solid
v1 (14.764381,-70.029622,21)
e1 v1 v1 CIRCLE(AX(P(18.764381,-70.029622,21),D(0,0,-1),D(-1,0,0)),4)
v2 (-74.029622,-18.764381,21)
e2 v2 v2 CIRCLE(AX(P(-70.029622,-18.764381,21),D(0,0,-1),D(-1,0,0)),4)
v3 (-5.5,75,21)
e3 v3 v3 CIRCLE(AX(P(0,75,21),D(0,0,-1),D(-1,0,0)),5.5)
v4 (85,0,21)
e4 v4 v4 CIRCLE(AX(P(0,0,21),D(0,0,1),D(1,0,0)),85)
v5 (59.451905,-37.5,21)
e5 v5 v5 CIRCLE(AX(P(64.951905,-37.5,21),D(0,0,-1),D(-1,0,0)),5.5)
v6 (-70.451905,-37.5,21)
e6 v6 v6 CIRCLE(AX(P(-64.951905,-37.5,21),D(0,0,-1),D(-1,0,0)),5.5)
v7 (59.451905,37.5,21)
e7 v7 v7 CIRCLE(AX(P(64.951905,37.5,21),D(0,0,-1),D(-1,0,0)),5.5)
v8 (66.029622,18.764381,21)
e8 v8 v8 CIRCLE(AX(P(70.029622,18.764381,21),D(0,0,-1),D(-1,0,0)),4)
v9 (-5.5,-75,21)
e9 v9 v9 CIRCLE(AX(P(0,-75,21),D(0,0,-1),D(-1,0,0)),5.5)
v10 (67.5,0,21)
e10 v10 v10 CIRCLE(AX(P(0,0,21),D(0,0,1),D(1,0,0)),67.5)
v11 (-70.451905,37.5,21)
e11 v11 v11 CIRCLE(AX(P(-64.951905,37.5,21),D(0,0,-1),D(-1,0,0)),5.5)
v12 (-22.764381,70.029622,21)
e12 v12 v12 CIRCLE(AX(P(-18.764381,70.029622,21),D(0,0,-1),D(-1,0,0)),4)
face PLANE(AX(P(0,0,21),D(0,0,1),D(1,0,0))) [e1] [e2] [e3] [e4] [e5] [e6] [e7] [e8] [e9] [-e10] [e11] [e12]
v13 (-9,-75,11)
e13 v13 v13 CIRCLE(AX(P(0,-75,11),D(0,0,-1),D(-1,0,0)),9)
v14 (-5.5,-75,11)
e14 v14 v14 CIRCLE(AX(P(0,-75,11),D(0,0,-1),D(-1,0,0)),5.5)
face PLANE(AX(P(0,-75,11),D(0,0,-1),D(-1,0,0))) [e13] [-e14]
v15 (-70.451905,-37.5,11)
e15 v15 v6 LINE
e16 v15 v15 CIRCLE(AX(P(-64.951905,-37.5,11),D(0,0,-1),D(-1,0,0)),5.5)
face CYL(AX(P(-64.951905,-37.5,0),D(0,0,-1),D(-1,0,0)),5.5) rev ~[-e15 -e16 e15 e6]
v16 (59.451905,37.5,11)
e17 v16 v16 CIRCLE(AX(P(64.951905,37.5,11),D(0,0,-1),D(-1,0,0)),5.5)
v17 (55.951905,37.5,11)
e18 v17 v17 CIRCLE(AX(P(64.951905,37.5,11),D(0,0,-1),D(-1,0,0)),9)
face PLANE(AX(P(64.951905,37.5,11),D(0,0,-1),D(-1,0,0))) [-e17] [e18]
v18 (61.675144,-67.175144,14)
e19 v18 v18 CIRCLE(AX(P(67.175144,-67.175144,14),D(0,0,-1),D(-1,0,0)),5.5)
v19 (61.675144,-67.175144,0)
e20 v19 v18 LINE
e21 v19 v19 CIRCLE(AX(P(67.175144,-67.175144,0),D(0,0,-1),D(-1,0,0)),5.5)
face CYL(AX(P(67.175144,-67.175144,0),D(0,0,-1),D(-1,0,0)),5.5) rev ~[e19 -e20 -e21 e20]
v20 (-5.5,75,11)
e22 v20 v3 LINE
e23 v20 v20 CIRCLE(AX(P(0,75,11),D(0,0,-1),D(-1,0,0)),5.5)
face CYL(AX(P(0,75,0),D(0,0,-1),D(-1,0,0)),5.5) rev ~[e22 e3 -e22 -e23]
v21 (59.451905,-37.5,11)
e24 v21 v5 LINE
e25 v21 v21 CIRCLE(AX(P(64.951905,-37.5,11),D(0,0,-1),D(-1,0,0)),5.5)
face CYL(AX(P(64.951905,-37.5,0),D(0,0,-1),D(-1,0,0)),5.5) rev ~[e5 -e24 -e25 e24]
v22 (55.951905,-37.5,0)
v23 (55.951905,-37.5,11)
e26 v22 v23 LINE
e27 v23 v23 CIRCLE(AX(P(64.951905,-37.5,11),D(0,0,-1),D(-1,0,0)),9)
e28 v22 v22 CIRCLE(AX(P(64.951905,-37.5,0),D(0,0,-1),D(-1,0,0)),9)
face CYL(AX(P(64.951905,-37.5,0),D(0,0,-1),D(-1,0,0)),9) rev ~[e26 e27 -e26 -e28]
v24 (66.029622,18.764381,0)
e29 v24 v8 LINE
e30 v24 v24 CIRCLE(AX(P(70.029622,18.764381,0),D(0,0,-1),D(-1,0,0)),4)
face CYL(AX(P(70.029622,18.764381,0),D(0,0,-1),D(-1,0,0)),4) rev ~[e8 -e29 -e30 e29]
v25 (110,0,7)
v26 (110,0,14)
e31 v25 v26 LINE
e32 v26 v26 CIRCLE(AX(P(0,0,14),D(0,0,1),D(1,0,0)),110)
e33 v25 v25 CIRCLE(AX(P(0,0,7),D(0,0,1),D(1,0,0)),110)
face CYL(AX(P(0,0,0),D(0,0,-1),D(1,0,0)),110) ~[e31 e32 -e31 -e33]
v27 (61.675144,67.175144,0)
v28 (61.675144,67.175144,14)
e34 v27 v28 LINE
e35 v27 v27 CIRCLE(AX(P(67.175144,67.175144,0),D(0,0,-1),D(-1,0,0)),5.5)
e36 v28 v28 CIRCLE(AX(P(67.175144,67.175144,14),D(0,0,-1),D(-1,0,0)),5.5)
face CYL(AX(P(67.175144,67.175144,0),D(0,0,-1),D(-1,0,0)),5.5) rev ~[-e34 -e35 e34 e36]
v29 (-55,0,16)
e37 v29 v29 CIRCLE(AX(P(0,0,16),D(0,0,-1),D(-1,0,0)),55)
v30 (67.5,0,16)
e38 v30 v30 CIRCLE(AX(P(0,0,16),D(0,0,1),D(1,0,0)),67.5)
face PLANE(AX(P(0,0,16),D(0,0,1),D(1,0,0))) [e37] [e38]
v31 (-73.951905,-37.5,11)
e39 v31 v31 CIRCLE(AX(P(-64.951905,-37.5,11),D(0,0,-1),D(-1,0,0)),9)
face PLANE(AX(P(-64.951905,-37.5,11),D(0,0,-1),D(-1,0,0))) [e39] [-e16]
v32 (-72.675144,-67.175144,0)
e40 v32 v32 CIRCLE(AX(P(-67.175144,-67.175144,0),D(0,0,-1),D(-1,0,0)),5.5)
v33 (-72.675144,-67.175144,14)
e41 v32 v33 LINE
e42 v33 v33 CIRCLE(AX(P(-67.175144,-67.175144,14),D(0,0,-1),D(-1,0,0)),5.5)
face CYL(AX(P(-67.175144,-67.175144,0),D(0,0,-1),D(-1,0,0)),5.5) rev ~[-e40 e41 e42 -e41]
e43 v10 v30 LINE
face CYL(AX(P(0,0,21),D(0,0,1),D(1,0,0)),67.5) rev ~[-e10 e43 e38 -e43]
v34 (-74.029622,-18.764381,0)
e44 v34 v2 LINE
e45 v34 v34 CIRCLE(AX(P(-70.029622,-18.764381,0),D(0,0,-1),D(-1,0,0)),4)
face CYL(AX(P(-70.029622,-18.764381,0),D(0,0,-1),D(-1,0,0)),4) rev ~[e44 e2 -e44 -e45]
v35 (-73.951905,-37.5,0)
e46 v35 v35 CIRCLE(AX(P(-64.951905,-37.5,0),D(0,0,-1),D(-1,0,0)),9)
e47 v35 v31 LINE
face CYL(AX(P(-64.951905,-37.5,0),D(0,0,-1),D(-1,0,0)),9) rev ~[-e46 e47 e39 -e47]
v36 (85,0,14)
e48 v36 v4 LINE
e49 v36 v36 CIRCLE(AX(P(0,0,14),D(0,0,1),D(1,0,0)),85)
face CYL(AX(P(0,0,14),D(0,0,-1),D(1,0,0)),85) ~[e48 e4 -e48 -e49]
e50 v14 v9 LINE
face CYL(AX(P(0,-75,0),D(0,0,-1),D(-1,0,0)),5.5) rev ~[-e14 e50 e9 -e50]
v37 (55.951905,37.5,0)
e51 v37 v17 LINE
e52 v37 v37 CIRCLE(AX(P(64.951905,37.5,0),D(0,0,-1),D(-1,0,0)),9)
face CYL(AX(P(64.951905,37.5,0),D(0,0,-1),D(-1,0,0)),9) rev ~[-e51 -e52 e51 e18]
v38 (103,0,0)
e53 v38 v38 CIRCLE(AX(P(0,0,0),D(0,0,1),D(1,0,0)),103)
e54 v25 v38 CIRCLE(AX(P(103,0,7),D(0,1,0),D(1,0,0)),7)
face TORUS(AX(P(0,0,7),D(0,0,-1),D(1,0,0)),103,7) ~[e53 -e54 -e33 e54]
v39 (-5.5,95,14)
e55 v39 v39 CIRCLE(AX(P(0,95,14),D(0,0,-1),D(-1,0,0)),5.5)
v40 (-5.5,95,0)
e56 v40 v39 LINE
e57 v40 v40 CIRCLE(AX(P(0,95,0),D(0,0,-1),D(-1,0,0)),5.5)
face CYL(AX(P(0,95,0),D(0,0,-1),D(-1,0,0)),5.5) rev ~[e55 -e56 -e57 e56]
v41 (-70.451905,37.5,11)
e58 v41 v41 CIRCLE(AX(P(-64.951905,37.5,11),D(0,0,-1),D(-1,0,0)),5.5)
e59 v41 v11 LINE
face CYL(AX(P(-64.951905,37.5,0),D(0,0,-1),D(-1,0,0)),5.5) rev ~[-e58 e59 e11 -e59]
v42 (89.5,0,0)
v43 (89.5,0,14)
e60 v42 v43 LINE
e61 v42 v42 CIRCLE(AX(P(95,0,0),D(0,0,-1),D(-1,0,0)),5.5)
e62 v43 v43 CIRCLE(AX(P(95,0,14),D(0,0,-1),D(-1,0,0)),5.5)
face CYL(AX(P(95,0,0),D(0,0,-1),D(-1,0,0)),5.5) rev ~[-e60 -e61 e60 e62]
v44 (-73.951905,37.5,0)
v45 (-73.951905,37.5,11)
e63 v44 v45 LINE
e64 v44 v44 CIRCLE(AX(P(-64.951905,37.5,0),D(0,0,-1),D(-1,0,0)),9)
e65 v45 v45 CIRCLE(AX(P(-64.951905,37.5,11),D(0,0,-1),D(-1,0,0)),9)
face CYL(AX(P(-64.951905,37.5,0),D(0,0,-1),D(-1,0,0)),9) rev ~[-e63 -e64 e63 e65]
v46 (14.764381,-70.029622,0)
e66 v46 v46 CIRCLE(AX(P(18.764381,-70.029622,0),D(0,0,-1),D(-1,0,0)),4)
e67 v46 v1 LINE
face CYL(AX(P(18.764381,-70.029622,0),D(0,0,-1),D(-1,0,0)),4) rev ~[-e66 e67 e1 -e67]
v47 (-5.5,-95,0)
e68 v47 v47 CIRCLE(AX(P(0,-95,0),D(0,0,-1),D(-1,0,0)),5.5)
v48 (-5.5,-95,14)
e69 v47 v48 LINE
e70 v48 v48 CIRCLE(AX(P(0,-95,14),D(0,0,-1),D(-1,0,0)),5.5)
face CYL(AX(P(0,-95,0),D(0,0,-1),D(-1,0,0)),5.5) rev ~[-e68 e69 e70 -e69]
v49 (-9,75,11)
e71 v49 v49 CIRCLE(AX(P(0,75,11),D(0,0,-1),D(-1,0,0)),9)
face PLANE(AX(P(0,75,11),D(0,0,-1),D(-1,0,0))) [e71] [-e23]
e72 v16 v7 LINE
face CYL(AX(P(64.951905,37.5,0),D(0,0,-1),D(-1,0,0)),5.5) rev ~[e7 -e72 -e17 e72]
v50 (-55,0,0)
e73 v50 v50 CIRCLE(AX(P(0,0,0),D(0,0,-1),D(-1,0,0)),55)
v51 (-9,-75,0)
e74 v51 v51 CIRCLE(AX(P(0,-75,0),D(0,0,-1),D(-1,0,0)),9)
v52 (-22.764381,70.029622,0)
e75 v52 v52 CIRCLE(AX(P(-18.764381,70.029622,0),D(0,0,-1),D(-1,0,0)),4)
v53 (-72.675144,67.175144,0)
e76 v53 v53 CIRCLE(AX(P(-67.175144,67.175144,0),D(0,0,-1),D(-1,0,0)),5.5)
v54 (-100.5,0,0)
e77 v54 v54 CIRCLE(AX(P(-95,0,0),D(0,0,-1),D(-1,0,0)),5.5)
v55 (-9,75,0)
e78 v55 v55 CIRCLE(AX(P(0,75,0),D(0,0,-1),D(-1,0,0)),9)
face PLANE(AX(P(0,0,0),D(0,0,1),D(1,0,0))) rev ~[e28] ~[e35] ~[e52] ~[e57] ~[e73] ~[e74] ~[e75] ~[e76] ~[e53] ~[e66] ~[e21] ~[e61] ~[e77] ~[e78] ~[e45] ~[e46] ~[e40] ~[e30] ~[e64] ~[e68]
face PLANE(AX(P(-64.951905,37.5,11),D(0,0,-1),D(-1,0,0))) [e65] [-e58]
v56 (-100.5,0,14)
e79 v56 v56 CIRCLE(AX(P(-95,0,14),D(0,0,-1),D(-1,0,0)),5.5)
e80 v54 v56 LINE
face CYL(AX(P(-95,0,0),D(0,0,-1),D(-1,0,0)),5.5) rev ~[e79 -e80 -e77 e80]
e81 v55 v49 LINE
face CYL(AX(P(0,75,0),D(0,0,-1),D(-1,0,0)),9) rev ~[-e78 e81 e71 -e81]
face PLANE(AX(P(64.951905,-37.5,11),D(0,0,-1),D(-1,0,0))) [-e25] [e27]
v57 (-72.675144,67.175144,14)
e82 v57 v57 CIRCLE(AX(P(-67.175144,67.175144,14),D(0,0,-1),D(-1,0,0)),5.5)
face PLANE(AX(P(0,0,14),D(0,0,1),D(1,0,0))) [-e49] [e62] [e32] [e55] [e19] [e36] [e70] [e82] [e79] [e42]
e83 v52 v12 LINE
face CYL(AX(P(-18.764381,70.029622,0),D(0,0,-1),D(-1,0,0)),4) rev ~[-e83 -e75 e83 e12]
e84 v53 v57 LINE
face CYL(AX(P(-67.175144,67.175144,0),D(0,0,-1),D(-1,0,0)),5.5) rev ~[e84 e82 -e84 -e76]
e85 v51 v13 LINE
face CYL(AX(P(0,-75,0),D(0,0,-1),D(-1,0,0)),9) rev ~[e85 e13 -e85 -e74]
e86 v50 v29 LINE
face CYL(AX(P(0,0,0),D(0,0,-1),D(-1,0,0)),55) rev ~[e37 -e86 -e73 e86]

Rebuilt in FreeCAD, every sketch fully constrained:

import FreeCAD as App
import Part
import Sketcher

V = App.Vector
Q = App.Units.Quantity


def edges_at(feature, points):
    """Names of the edges that pass closest to the given points."""
    edges = feature.Shape.Edges
    near = lambda p: min(range(len(edges)), key=lambda i: edges[i].distToShape(Part.Vertex(*p))[0])
    return sorted({f"Edge{near(p) + 1}" for p in points})

doc = App.newDocument("Part")
params = doc.addObject("Spreadsheet::Sheet", "Params")
for row, (alias, value) in enumerate([
    ("sketch1_diameter", "220 mm"),
    ("pad1_length", "14 mm"),
    ("sketch2_diameter", "170 mm"),
    ("pad2_length", "7 mm"),
    ("sketch3_diameter", "110 mm"),
    ("fillet_radius", "7 mm"),
    ("sketch4_diameter", "11 mm"),
    ("sketch5_diameter", "11 mm"),
    ("sketch6_diameter", "135 mm"),
    ("pocket4_length", "5 mm"),
    ("sketch7_diameter", "18 mm"),
    ("pocket5_length", "11 mm"),
    ("sketch8_diameter", "8 mm"),
], start=1):
    params.set(f"A{row}", alias)
    params.set(f"B{row}", "=" + value)
    params.setAlias(f"B{row}", alias)

body = doc.addObject("PartDesign::Body", "Body")

# Sketch on XY plane
sketch1 = doc.addObject("Sketcher::SketchObject", "Sketch")
body.addObject(sketch1)
sketch1.AttachmentSupport = (doc.XY_Plane, [""])
sketch1.MapMode = "FlatFace"
sketch1.addGeometry(Part.Circle(V(0, 0, 0), V(0, 0, 1), 110), False)
sketch1.addConstraint([
    Sketcher.Constraint("Coincident", 0, 3, -1, 1),
    Sketcher.Constraint("Diameter", 0, Q("220 mm")),
])
sketch1.setExpression("Constraints[1]", "Params.sketch1_diameter")
pad1 = doc.addObject("PartDesign::Pad", "Pad")
body.addObject(pad1)
pad1.Profile = sketch1
pad1.setExpression("Length", "Params.pad1_length")

# Sketch on XY plane
sketch2 = doc.addObject("Sketcher::SketchObject", "Sketch001")
body.addObject(sketch2)
sketch2.AttachmentSupport = (doc.XY_Plane, [""])
sketch2.MapMode = "FlatFace"
sketch2.AttachmentOffset = App.Placement(V(0, 0, 14), App.Rotation())
sketch2.addGeometry(Part.Circle(V(0, 0, 0), V(0, 0, 1), 85), False)
sketch2.addConstraint([
    Sketcher.Constraint("Coincident", 0, 3, -1, 1),
    Sketcher.Constraint("Diameter", 0, Q("170 mm")),
])
sketch2.setExpression("Constraints[1]", "Params.sketch2_diameter")
pad2 = doc.addObject("PartDesign::Pad", "Pad001")
body.addObject(pad2)
pad2.Profile = sketch2
pad2.setExpression("Length", "Params.pad2_length")

# Sketch on XY plane
sketch3 = doc.addObject("Sketcher::SketchObject", "Sketch002")
body.addObject(sketch3)
sketch3.AttachmentSupport = (doc.XY_Plane, [""])
sketch3.MapMode = "FlatFace"
sketch3.addGeometry(Part.Circle(V(0, 0, 0), V(0, 0, 1), 55), False)
sketch3.addConstraint([
    Sketcher.Constraint("Coincident", 0, 3, -1, 1),
    Sketcher.Constraint("Diameter", 0, Q("110 mm")),
])
sketch3.setExpression("Constraints[1]", "Params.sketch3_diameter")
pocket1 = doc.addObject("PartDesign::Pocket", "Pocket")
body.addObject(pocket1)
pocket1.Profile = sketch3
pocket1.Type = "ThroughAll"
pocket1.Reversed = True
doc.recompute()

fillet = doc.addObject("PartDesign::Fillet", "Fillet")
body.addObject(fillet)
fillet.Base = (pocket1, edges_at(pocket1, [(-110, 0, 0)]))
fillet.setExpression("Radius", "Params.fillet_radius")

# Sketch on XY plane
sketch4 = doc.addObject("Sketcher::SketchObject", "Sketch003")
body.addObject(sketch4)
sketch4.AttachmentSupport = (doc.XY_Plane, [""])
sketch4.MapMode = "FlatFace"
sketch4.addGeometry([
    Part.Circle(V(0, 95, 0), V(0, 0, 1), 6),  # 0
    Part.Circle(V(-67, 67, 0), V(0, 0, 1), 6),  # 1
    Part.Circle(V(-95, 0, 0), V(0, 0, 1), 6),  # 2
    Part.Circle(V(-67, -67, 0), V(0, 0, 1), 6),  # 3
    Part.Circle(V(0, -95, 0), V(0, 0, 1), 6),  # 4
    Part.Circle(V(67, -67, 0), V(0, 0, 1), 6),  # 5
    Part.Circle(V(95, 0, 0), V(0, 0, 1), 6),  # 6
    Part.Circle(V(67, 67, 0), V(0, 0, 1), 6),  # 7
], False)
sketch4.addConstraint([
    Sketcher.Constraint("Equal", 0, 1),
    Sketcher.Constraint("Equal", 1, 2),
    Sketcher.Constraint("Equal", 2, 3),
    Sketcher.Constraint("Equal", 3, 4),
    Sketcher.Constraint("Equal", 4, 5),
    Sketcher.Constraint("Equal", 5, 6),
    Sketcher.Constraint("Equal", 6, 7),
    Sketcher.Constraint("Symmetric", 0, 3, 4, 3, -1, 1),
    Sketcher.Constraint("Symmetric", 1, 3, 5, 3, -1, 1),
    Sketcher.Constraint("Symmetric", 2, 3, 6, 3, -1, 1),
    Sketcher.Constraint("Symmetric", 3, 3, 7, 3, -1, 1),
    Sketcher.Constraint("Symmetric", 3, 3, 5, 3, -2),
    Sketcher.Constraint("PointOnObject", 0, 3, -2),
    Sketcher.Constraint("PointOnObject", 2, 3, -1),
    Sketcher.Constraint("Diameter", 0, Q("11 mm")),
    Sketcher.Constraint("DistanceY", -1, 1, 0, 3, Q("95 mm")),
    Sketcher.Constraint("DistanceX", 2, 3, -1, 1, Q("95 mm")),
    Sketcher.Constraint("DistanceY", 3, 3, 1, 3, Q("134.350288 mm")),
    Sketcher.Constraint("DistanceX", 3, 3, 5, 3, Q("134.350288 mm")),
])
sketch4.setExpression("Constraints[14]", "Params.sketch4_diameter")
pocket2 = doc.addObject("PartDesign::Pocket", "Pocket001")
body.addObject(pocket2)
pocket2.Profile = sketch4
pocket2.Type = "ThroughAll"
pocket2.Reversed = True

# Sketch on XY plane
sketch5 = doc.addObject("Sketcher::SketchObject", "Sketch004")
body.addObject(sketch5)
sketch5.AttachmentSupport = (doc.XY_Plane, [""])
sketch5.MapMode = "FlatFace"
sketch5.addGeometry([
    Part.Circle(V(0, 75, 0), V(0, 0, 1), 6),  # 0
    Part.Circle(V(-65, 38, 0), V(0, 0, 1), 6),  # 1
    Part.Circle(V(-65, -38, 0), V(0, 0, 1), 6),  # 2
    Part.Circle(V(0, -75, 0), V(0, 0, 1), 6),  # 3
    Part.Circle(V(65, -38, 0), V(0, 0, 1), 6),  # 4
    Part.Circle(V(65, 38, 0), V(0, 0, 1), 6),  # 5
], False)
sketch5.addConstraint([
    Sketcher.Constraint("Equal", 0, 1),
    Sketcher.Constraint("Equal", 1, 2),
    Sketcher.Constraint("Equal", 2, 3),
    Sketcher.Constraint("Equal", 3, 4),
    Sketcher.Constraint("Equal", 4, 5),
    Sketcher.Constraint("Symmetric", 0, 3, 3, 3, -1, 1),
    Sketcher.Constraint("Symmetric", 1, 3, 4, 3, -1, 1),
    Sketcher.Constraint("Symmetric", 2, 3, 5, 3, -1, 1),
    Sketcher.Constraint("Symmetric", 2, 3, 4, 3, -2),
    Sketcher.Constraint("PointOnObject", 0, 3, -2),
    Sketcher.Constraint("Diameter", 0, Q("11 mm")),
    Sketcher.Constraint("DistanceY", -1, 1, 0, 3, Q("75 mm")),
    Sketcher.Constraint("DistanceY", 2, 3, 1, 3, Q("75 mm")),
    Sketcher.Constraint("DistanceX", 2, 3, 4, 3, Q("129.903811 mm")),
])
sketch5.setExpression("Constraints[10]", "Params.sketch5_diameter")
pocket3 = doc.addObject("PartDesign::Pocket", "Pocket002")
body.addObject(pocket3)
pocket3.Profile = sketch5
pocket3.Type = "ThroughAll"
pocket3.Reversed = True

# Sketch on XY plane
sketch6 = doc.addObject("Sketcher::SketchObject", "Sketch005")
body.addObject(sketch6)
sketch6.AttachmentSupport = (doc.XY_Plane, [""])
sketch6.MapMode = "FlatFace"
sketch6.AttachmentOffset = App.Placement(V(0, 0, 21), App.Rotation())
sketch6.addGeometry(Part.Circle(V(0, 0, 0), V(0, 0, 1), 68), False)
sketch6.addConstraint([
    Sketcher.Constraint("Coincident", 0, 3, -1, 1),
    Sketcher.Constraint("Diameter", 0, Q("135 mm")),
])
sketch6.setExpression("Constraints[1]", "Params.sketch6_diameter")
pocket4 = doc.addObject("PartDesign::Pocket", "Pocket003")
body.addObject(pocket4)
pocket4.Profile = sketch6
pocket4.setExpression("Length", "Params.pocket4_length")

# Sketch on XY plane
sketch7 = doc.addObject("Sketcher::SketchObject", "Sketch006")
body.addObject(sketch7)
sketch7.AttachmentSupport = (doc.XY_Plane, [""])
sketch7.MapMode = "FlatFace"
sketch7.addGeometry([
    Part.Circle(V(0, 75, 0), V(0, 0, 1), 9),  # 0
    Part.Circle(V(-65, 38, 0), V(0, 0, 1), 9),  # 1
    Part.Circle(V(-65, -38, 0), V(0, 0, 1), 9),  # 2
    Part.Circle(V(0, -75, 0), V(0, 0, 1), 9),  # 3
    Part.Circle(V(65, -38, 0), V(0, 0, 1), 9),  # 4
    Part.Circle(V(65, 38, 0), V(0, 0, 1), 9),  # 5
], False)
sketch7.addConstraint([
    Sketcher.Constraint("Equal", 0, 1),
    Sketcher.Constraint("Equal", 1, 2),
    Sketcher.Constraint("Equal", 2, 3),
    Sketcher.Constraint("Equal", 3, 4),
    Sketcher.Constraint("Equal", 4, 5),
    Sketcher.Constraint("Symmetric", 0, 3, 3, 3, -1, 1),
    Sketcher.Constraint("Symmetric", 1, 3, 4, 3, -1, 1),
    Sketcher.Constraint("Symmetric", 2, 3, 5, 3, -1, 1),
    Sketcher.Constraint("Symmetric", 2, 3, 4, 3, -2),
    Sketcher.Constraint("PointOnObject", 0, 3, -2),
    Sketcher.Constraint("Diameter", 0, Q("18 mm")),
    Sketcher.Constraint("DistanceY", -1, 1, 0, 3, Q("75 mm")),
    Sketcher.Constraint("DistanceY", 2, 3, 1, 3, Q("75 mm")),
    Sketcher.Constraint("DistanceX", 2, 3, 4, 3, Q("129.903811 mm")),
])
sketch7.setExpression("Constraints[10]", "Params.sketch7_diameter")
pocket5 = doc.addObject("PartDesign::Pocket", "Pocket004")
body.addObject(pocket5)
pocket5.Profile = sketch7
pocket5.setExpression("Length", "Params.pocket5_length")
pocket5.Reversed = True

# Sketch on XY plane
sketch8 = doc.addObject("Sketcher::SketchObject", "Sketch007")
body.addObject(sketch8)
sketch8.AttachmentSupport = (doc.XY_Plane, [""])
sketch8.MapMode = "FlatFace"
sketch8.addGeometry([
    Part.Circle(V(-18.8, 70, 0), V(0, 0, 1), 4),
    Part.Circle(V(-70, -18.8, 0), V(0, 0, 1), 4),
    Part.Circle(V(18.8, -70, 0), V(0, 0, 1), 4),
    Part.Circle(V(70, 18.8, 0), V(0, 0, 1), 4),
], False)
sketch8.addConstraint([
    Sketcher.Constraint("Equal", 0, 1),
    Sketcher.Constraint("Equal", 1, 2),
    Sketcher.Constraint("Equal", 2, 3),
    Sketcher.Constraint("Symmetric", 0, 3, 2, 3, -1, 1),
    Sketcher.Constraint("Symmetric", 1, 3, 3, 3, -1, 1),
    Sketcher.Constraint("Diameter", 0, Q("8 mm")),
    Sketcher.Constraint("DistanceX", 0, 3, -1, 1, Q("18.764381 mm")),
    Sketcher.Constraint("DistanceY", 1, 3, -1, 1, Q("18.764381 mm")),
    Sketcher.Constraint("DistanceX", 1, 3, 0, 3, Q("51.265242 mm")),
    Sketcher.Constraint("DistanceY", 2, 3, 1, 3, Q("51.265242 mm")),
])
sketch8.setExpression("Constraints[5]", "Params.sketch8_diameter")
pocket6 = doc.addObject("PartDesign::Pocket", "Pocket005")
body.addObject(pocket6)
pocket6.Profile = sketch8
pocket6.Type = "ThroughAll"
pocket6.Reversed = True

doc.recompute()
